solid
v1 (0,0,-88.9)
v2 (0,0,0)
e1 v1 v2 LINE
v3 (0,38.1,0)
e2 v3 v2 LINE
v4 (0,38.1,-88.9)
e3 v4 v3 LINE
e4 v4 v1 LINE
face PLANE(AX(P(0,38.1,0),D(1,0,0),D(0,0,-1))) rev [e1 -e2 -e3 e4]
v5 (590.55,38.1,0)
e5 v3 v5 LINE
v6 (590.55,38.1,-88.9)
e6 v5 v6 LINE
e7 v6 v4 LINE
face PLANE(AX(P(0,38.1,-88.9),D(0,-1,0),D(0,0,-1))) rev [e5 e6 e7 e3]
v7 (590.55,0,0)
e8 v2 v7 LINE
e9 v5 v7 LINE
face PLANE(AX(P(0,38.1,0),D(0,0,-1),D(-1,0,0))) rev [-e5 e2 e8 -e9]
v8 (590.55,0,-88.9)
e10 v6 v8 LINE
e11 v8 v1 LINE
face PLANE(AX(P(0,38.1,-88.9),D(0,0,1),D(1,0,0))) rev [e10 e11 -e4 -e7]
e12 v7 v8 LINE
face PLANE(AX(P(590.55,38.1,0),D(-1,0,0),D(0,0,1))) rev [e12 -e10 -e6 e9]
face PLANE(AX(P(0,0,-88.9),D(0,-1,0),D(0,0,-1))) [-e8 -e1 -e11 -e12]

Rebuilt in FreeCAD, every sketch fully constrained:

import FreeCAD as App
import Part
import Sketcher
Q = App.Units.Quantity


def add_polygon(sketch, points):
    """Adds a closed chain of lines whose ends are joined by coincident constraints."""
    first, n = sketch.GeometryCount, len(points)
    for a, b in zip(points, points[1:] + points[:1]):
        sketch.addGeometry(Part.LineSegment(App.Vector(*a, 0), App.Vector(*b, 0)), False)
    for i in range(n):
        sketch.addConstraint(Sketcher.Constraint("Coincident", first + i, 2, first + (i + 1) % n, 1))

doc = App.newDocument("Part")
body = doc.addObject("PartDesign::Body", "Body")

# Sketch on XZ plane
sketch1 = body.newObject("Sketcher::SketchObject", "Sketch")
sketch1.AttachmentSupport = (doc.getObject("XZ_Plane"), [""])
sketch1.MapMode = "FlatFace"
add_polygon(sketch1, [(0, -89), (0, 0), (591, 0), (591, -89)])  # lines 0-3
sketch1.addConstraint([
    Sketcher.Constraint("Vertical", 0),
    Sketcher.Constraint("Horizontal", 1),
    Sketcher.Constraint("Vertical", 2),
    Sketcher.Constraint("Horizontal", 3),
    Sketcher.Constraint("Coincident", 0, 2, -1, 1),
    Sketcher.Constraint("DistanceY", 0, 1, 0, 2, Q("3.5 in")),
    Sketcher.Constraint("DistanceX", 1, 1, 1, 2, Q("23.25 in")),
])
pad1 = body.newObject("PartDesign::Pad", "Pad")
pad1.Profile = sketch1
pad1.Length = Q("1.5 in")
pad1.Reversed = True

doc.recompute()
